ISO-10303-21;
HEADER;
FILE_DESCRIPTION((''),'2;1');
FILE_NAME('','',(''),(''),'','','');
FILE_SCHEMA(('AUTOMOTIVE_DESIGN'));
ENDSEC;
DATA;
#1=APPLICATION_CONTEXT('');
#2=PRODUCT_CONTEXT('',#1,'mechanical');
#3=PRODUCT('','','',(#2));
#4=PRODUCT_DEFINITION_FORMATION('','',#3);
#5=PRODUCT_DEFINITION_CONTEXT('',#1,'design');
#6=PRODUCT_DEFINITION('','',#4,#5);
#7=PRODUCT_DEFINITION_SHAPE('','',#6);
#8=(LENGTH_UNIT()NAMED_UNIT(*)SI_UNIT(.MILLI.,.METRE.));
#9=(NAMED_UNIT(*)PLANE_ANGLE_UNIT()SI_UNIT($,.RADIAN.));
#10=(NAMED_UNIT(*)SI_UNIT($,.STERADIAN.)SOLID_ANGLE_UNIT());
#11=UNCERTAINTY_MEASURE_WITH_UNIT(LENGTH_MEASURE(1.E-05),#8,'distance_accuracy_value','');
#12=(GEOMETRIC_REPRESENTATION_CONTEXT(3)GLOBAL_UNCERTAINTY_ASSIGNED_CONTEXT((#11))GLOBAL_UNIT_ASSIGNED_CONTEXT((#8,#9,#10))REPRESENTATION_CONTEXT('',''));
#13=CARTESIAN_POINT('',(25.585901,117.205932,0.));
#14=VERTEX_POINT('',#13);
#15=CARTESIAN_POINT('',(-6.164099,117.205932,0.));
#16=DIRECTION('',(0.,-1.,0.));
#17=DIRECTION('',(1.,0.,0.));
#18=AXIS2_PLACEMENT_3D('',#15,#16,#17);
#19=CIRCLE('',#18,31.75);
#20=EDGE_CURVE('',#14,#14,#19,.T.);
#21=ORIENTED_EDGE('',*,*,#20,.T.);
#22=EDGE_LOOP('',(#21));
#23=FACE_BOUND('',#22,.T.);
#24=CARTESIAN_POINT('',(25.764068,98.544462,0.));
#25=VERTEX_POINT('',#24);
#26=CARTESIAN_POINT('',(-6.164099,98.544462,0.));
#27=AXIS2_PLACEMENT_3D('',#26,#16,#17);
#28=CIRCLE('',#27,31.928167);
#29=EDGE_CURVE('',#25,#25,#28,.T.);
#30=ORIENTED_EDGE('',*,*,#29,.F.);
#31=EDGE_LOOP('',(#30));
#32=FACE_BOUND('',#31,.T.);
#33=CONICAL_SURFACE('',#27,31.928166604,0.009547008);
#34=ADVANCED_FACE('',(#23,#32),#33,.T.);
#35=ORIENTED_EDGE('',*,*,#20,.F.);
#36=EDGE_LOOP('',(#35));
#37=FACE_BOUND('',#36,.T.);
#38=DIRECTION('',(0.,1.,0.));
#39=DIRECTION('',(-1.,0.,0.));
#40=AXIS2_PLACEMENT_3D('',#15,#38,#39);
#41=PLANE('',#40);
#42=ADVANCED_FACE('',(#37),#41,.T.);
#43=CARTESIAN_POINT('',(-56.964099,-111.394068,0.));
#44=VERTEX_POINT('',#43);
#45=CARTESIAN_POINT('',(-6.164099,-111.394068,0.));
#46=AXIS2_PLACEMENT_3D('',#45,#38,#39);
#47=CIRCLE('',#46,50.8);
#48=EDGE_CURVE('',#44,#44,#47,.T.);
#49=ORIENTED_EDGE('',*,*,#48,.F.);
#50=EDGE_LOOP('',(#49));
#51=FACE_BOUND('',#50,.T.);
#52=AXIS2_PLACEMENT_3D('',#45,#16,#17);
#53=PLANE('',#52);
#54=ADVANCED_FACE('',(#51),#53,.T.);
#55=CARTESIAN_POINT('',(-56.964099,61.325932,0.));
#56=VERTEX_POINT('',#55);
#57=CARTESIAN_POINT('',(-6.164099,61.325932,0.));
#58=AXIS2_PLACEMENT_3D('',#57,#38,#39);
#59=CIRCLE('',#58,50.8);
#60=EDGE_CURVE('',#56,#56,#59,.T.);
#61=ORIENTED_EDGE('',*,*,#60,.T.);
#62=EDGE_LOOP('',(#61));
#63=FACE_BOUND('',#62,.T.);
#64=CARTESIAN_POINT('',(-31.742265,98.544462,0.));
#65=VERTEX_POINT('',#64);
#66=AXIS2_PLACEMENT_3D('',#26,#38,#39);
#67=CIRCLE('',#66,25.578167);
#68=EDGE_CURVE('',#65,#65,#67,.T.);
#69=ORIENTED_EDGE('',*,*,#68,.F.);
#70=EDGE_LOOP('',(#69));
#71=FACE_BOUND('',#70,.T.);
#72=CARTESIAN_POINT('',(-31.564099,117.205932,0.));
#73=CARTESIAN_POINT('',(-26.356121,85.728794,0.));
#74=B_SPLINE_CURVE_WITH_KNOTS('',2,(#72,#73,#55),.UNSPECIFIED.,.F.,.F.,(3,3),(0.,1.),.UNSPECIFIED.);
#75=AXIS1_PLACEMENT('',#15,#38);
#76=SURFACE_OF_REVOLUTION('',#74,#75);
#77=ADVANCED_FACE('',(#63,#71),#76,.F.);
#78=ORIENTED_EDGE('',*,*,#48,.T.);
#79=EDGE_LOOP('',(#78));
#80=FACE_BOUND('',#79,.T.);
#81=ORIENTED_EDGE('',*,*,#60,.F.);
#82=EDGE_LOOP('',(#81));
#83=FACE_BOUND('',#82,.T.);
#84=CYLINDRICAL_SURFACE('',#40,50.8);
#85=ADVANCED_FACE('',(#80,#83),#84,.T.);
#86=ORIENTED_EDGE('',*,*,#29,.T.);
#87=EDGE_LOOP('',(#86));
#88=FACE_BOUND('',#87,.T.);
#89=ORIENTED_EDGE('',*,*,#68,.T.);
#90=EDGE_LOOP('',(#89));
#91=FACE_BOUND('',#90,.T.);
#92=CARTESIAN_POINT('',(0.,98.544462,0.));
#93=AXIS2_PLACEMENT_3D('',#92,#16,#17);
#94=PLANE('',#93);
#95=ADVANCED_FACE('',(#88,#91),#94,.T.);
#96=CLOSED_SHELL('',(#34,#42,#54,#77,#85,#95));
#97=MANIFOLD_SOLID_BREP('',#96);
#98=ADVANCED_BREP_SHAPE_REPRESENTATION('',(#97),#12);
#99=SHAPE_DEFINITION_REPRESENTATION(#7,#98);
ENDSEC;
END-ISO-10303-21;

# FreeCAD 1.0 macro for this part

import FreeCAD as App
import Part
import Sketcher
Q = App.Units.Quantity

doc = App.newDocument("Part")
body = doc.addObject("PartDesign::Body", "Body")

# Sketch on XY plane
sketch1 = body.newObject("Sketcher::SketchObject", "Sketch")
sketch1.AttachmentSupport = (doc.getObject("XY_Plane"), [""])
sketch1.MapMode = "FlatFace"
sketch1.addGeometry([
    Part.LineSegment(App.Vector(-6.164099, -111.394068, 0), App.Vector(-6.164099, 117.205932, 0)),  # 0
    Part.LineSegment(App.Vector(-6.164099, 117.205932, 0), App.Vector(-31.564099, 117.205932, 0)),  # 1
    Part.BSplineCurve([App.Vector(-56.964099, 61.325932, 0), App.Vector(-26.356121, 85.728794, 0), App.Vector(-31.564099, 117.205932, 0)], [3, 3], [0, 1], False, 2, [1, 1, 1], False),  # 2
    Part.LineSegment(App.Vector(-56.964099, 61.325932, 0), App.Vector(-56.964099, -111.394068, 0)),  # 3
    Part.LineSegment(App.Vector(-56.964099, -111.394068, 0), App.Vector(-6.164099, -111.394068, 0)),  # 4
], False)
sketch1.addGeometry(Part.LineSegment(App.Vector(-6.164099, 117.205932, 0), App.Vector(-6.164099, -111.394068, 0)), True)  # axis
sketch1.addConstraint([
    Sketcher.Constraint("Block", 2),
    Sketcher.Constraint("Coincident", 0, 2, 1, 1),
    Sketcher.Constraint("Coincident", 1, 2, 2, 2),
    Sketcher.Constraint("Coincident", 2, 1, 3, 1),
    Sketcher.Constraint("Coincident", 3, 2, 4, 1),
    Sketcher.Constraint("Coincident", 4, 2, 0, 1),
    Sketcher.Constraint("Vertical", 0),
    Sketcher.Constraint("Horizontal", 1),
    Sketcher.Constraint("Vertical", 3),
    Sketcher.Constraint("Horizontal", 4),
    Sketcher.Constraint("Vertical", 5),
    Sketcher.Constraint("Coincident", 5, 1, 0, 2),
    Sketcher.Constraint("Horizontal", 3, 2, 5, 2),
    Sketcher.Constraint("DistanceX", 1, 2, 1, 1, Q("1 in")),
    Sketcher.Constraint("DistanceY", 0, 1, 0, 2, Q("9 in")),
])
revolution = body.newObject("PartDesign::Revolution", "Revolution")
revolution.Profile = sketch1
revolution.ReferenceAxis = (sketch1, ["Axis0"])
revolution.Angle = 360

# Sketch on XY plane
sketch2 = body.newObject("Sketcher::SketchObject", "Sketch001")
sketch2.AttachmentSupport = (doc.getObject("XY_Plane"), [""])
sketch2.MapMode = "FlatFace"
sketch2.addGeometry([
    Part.LineSegment(App.Vector(-38.092265, 98.544462, 0), App.Vector(-31.742265, 98.544462, 0)),
    Part.BSplineCurve([App.Vector(-31.564099, 117.205932, 0), App.Vector(-29.965138, 107.541779, 0), App.Vector(-31.742265, 98.544462, 0)], [3, 3], [0, 0.307021343], False, 2, [1, 1, 1], False),
    Part.LineSegment(App.Vector(-31.564099, 117.205932, 0), App.Vector(-37.914099, 117.205932, 0)),
    Part.LineSegment(App.Vector(-37.914099, 117.205932, 0), App.Vector(-38.092265, 98.544462, 0)),
], False)
sketch2.addGeometry(Part.LineSegment(App.Vector(-6.164099, 98.544462, 0), App.Vector(-6.164099, 117.205932, 0)), True)  # axis
sketch2.addConstraint([
    Sketcher.Constraint("Block", 1),
    Sketcher.Constraint("Coincident", 0, 2, 1, 2),
    Sketcher.Constraint("Coincident", 1, 1, 2, 1),
    Sketcher.Constraint("Coincident", 2, 2, 3, 1),
    Sketcher.Constraint("Coincident", 3, 2, 0, 1),
    Sketcher.Constraint("Horizontal", 0),
    Sketcher.Constraint("Horizontal", 2),
    Sketcher.Constraint("Vertical", 4),
    Sketcher.Constraint("Horizontal", 3, 2, 4, 1),
    Sketcher.Constraint("Horizontal", 2, 2, 4, 2),
    Sketcher.Constraint("Equal", 0, 2),
    Sketcher.Constraint("DistanceX", 0, 1, 0, 2, Q("0.25 in")),
    Sketcher.Constraint("DistanceX", 2, 2, 4, 1, Q("1.25 in")),
])
revolution2 = body.newObject("PartDesign::Revolution", "Revolution001")
revolution2.Profile = sketch2
revolution2.ReferenceAxis = (sketch2, ["Axis0"])
revolution2.Angle = 360

doc.recompute()
